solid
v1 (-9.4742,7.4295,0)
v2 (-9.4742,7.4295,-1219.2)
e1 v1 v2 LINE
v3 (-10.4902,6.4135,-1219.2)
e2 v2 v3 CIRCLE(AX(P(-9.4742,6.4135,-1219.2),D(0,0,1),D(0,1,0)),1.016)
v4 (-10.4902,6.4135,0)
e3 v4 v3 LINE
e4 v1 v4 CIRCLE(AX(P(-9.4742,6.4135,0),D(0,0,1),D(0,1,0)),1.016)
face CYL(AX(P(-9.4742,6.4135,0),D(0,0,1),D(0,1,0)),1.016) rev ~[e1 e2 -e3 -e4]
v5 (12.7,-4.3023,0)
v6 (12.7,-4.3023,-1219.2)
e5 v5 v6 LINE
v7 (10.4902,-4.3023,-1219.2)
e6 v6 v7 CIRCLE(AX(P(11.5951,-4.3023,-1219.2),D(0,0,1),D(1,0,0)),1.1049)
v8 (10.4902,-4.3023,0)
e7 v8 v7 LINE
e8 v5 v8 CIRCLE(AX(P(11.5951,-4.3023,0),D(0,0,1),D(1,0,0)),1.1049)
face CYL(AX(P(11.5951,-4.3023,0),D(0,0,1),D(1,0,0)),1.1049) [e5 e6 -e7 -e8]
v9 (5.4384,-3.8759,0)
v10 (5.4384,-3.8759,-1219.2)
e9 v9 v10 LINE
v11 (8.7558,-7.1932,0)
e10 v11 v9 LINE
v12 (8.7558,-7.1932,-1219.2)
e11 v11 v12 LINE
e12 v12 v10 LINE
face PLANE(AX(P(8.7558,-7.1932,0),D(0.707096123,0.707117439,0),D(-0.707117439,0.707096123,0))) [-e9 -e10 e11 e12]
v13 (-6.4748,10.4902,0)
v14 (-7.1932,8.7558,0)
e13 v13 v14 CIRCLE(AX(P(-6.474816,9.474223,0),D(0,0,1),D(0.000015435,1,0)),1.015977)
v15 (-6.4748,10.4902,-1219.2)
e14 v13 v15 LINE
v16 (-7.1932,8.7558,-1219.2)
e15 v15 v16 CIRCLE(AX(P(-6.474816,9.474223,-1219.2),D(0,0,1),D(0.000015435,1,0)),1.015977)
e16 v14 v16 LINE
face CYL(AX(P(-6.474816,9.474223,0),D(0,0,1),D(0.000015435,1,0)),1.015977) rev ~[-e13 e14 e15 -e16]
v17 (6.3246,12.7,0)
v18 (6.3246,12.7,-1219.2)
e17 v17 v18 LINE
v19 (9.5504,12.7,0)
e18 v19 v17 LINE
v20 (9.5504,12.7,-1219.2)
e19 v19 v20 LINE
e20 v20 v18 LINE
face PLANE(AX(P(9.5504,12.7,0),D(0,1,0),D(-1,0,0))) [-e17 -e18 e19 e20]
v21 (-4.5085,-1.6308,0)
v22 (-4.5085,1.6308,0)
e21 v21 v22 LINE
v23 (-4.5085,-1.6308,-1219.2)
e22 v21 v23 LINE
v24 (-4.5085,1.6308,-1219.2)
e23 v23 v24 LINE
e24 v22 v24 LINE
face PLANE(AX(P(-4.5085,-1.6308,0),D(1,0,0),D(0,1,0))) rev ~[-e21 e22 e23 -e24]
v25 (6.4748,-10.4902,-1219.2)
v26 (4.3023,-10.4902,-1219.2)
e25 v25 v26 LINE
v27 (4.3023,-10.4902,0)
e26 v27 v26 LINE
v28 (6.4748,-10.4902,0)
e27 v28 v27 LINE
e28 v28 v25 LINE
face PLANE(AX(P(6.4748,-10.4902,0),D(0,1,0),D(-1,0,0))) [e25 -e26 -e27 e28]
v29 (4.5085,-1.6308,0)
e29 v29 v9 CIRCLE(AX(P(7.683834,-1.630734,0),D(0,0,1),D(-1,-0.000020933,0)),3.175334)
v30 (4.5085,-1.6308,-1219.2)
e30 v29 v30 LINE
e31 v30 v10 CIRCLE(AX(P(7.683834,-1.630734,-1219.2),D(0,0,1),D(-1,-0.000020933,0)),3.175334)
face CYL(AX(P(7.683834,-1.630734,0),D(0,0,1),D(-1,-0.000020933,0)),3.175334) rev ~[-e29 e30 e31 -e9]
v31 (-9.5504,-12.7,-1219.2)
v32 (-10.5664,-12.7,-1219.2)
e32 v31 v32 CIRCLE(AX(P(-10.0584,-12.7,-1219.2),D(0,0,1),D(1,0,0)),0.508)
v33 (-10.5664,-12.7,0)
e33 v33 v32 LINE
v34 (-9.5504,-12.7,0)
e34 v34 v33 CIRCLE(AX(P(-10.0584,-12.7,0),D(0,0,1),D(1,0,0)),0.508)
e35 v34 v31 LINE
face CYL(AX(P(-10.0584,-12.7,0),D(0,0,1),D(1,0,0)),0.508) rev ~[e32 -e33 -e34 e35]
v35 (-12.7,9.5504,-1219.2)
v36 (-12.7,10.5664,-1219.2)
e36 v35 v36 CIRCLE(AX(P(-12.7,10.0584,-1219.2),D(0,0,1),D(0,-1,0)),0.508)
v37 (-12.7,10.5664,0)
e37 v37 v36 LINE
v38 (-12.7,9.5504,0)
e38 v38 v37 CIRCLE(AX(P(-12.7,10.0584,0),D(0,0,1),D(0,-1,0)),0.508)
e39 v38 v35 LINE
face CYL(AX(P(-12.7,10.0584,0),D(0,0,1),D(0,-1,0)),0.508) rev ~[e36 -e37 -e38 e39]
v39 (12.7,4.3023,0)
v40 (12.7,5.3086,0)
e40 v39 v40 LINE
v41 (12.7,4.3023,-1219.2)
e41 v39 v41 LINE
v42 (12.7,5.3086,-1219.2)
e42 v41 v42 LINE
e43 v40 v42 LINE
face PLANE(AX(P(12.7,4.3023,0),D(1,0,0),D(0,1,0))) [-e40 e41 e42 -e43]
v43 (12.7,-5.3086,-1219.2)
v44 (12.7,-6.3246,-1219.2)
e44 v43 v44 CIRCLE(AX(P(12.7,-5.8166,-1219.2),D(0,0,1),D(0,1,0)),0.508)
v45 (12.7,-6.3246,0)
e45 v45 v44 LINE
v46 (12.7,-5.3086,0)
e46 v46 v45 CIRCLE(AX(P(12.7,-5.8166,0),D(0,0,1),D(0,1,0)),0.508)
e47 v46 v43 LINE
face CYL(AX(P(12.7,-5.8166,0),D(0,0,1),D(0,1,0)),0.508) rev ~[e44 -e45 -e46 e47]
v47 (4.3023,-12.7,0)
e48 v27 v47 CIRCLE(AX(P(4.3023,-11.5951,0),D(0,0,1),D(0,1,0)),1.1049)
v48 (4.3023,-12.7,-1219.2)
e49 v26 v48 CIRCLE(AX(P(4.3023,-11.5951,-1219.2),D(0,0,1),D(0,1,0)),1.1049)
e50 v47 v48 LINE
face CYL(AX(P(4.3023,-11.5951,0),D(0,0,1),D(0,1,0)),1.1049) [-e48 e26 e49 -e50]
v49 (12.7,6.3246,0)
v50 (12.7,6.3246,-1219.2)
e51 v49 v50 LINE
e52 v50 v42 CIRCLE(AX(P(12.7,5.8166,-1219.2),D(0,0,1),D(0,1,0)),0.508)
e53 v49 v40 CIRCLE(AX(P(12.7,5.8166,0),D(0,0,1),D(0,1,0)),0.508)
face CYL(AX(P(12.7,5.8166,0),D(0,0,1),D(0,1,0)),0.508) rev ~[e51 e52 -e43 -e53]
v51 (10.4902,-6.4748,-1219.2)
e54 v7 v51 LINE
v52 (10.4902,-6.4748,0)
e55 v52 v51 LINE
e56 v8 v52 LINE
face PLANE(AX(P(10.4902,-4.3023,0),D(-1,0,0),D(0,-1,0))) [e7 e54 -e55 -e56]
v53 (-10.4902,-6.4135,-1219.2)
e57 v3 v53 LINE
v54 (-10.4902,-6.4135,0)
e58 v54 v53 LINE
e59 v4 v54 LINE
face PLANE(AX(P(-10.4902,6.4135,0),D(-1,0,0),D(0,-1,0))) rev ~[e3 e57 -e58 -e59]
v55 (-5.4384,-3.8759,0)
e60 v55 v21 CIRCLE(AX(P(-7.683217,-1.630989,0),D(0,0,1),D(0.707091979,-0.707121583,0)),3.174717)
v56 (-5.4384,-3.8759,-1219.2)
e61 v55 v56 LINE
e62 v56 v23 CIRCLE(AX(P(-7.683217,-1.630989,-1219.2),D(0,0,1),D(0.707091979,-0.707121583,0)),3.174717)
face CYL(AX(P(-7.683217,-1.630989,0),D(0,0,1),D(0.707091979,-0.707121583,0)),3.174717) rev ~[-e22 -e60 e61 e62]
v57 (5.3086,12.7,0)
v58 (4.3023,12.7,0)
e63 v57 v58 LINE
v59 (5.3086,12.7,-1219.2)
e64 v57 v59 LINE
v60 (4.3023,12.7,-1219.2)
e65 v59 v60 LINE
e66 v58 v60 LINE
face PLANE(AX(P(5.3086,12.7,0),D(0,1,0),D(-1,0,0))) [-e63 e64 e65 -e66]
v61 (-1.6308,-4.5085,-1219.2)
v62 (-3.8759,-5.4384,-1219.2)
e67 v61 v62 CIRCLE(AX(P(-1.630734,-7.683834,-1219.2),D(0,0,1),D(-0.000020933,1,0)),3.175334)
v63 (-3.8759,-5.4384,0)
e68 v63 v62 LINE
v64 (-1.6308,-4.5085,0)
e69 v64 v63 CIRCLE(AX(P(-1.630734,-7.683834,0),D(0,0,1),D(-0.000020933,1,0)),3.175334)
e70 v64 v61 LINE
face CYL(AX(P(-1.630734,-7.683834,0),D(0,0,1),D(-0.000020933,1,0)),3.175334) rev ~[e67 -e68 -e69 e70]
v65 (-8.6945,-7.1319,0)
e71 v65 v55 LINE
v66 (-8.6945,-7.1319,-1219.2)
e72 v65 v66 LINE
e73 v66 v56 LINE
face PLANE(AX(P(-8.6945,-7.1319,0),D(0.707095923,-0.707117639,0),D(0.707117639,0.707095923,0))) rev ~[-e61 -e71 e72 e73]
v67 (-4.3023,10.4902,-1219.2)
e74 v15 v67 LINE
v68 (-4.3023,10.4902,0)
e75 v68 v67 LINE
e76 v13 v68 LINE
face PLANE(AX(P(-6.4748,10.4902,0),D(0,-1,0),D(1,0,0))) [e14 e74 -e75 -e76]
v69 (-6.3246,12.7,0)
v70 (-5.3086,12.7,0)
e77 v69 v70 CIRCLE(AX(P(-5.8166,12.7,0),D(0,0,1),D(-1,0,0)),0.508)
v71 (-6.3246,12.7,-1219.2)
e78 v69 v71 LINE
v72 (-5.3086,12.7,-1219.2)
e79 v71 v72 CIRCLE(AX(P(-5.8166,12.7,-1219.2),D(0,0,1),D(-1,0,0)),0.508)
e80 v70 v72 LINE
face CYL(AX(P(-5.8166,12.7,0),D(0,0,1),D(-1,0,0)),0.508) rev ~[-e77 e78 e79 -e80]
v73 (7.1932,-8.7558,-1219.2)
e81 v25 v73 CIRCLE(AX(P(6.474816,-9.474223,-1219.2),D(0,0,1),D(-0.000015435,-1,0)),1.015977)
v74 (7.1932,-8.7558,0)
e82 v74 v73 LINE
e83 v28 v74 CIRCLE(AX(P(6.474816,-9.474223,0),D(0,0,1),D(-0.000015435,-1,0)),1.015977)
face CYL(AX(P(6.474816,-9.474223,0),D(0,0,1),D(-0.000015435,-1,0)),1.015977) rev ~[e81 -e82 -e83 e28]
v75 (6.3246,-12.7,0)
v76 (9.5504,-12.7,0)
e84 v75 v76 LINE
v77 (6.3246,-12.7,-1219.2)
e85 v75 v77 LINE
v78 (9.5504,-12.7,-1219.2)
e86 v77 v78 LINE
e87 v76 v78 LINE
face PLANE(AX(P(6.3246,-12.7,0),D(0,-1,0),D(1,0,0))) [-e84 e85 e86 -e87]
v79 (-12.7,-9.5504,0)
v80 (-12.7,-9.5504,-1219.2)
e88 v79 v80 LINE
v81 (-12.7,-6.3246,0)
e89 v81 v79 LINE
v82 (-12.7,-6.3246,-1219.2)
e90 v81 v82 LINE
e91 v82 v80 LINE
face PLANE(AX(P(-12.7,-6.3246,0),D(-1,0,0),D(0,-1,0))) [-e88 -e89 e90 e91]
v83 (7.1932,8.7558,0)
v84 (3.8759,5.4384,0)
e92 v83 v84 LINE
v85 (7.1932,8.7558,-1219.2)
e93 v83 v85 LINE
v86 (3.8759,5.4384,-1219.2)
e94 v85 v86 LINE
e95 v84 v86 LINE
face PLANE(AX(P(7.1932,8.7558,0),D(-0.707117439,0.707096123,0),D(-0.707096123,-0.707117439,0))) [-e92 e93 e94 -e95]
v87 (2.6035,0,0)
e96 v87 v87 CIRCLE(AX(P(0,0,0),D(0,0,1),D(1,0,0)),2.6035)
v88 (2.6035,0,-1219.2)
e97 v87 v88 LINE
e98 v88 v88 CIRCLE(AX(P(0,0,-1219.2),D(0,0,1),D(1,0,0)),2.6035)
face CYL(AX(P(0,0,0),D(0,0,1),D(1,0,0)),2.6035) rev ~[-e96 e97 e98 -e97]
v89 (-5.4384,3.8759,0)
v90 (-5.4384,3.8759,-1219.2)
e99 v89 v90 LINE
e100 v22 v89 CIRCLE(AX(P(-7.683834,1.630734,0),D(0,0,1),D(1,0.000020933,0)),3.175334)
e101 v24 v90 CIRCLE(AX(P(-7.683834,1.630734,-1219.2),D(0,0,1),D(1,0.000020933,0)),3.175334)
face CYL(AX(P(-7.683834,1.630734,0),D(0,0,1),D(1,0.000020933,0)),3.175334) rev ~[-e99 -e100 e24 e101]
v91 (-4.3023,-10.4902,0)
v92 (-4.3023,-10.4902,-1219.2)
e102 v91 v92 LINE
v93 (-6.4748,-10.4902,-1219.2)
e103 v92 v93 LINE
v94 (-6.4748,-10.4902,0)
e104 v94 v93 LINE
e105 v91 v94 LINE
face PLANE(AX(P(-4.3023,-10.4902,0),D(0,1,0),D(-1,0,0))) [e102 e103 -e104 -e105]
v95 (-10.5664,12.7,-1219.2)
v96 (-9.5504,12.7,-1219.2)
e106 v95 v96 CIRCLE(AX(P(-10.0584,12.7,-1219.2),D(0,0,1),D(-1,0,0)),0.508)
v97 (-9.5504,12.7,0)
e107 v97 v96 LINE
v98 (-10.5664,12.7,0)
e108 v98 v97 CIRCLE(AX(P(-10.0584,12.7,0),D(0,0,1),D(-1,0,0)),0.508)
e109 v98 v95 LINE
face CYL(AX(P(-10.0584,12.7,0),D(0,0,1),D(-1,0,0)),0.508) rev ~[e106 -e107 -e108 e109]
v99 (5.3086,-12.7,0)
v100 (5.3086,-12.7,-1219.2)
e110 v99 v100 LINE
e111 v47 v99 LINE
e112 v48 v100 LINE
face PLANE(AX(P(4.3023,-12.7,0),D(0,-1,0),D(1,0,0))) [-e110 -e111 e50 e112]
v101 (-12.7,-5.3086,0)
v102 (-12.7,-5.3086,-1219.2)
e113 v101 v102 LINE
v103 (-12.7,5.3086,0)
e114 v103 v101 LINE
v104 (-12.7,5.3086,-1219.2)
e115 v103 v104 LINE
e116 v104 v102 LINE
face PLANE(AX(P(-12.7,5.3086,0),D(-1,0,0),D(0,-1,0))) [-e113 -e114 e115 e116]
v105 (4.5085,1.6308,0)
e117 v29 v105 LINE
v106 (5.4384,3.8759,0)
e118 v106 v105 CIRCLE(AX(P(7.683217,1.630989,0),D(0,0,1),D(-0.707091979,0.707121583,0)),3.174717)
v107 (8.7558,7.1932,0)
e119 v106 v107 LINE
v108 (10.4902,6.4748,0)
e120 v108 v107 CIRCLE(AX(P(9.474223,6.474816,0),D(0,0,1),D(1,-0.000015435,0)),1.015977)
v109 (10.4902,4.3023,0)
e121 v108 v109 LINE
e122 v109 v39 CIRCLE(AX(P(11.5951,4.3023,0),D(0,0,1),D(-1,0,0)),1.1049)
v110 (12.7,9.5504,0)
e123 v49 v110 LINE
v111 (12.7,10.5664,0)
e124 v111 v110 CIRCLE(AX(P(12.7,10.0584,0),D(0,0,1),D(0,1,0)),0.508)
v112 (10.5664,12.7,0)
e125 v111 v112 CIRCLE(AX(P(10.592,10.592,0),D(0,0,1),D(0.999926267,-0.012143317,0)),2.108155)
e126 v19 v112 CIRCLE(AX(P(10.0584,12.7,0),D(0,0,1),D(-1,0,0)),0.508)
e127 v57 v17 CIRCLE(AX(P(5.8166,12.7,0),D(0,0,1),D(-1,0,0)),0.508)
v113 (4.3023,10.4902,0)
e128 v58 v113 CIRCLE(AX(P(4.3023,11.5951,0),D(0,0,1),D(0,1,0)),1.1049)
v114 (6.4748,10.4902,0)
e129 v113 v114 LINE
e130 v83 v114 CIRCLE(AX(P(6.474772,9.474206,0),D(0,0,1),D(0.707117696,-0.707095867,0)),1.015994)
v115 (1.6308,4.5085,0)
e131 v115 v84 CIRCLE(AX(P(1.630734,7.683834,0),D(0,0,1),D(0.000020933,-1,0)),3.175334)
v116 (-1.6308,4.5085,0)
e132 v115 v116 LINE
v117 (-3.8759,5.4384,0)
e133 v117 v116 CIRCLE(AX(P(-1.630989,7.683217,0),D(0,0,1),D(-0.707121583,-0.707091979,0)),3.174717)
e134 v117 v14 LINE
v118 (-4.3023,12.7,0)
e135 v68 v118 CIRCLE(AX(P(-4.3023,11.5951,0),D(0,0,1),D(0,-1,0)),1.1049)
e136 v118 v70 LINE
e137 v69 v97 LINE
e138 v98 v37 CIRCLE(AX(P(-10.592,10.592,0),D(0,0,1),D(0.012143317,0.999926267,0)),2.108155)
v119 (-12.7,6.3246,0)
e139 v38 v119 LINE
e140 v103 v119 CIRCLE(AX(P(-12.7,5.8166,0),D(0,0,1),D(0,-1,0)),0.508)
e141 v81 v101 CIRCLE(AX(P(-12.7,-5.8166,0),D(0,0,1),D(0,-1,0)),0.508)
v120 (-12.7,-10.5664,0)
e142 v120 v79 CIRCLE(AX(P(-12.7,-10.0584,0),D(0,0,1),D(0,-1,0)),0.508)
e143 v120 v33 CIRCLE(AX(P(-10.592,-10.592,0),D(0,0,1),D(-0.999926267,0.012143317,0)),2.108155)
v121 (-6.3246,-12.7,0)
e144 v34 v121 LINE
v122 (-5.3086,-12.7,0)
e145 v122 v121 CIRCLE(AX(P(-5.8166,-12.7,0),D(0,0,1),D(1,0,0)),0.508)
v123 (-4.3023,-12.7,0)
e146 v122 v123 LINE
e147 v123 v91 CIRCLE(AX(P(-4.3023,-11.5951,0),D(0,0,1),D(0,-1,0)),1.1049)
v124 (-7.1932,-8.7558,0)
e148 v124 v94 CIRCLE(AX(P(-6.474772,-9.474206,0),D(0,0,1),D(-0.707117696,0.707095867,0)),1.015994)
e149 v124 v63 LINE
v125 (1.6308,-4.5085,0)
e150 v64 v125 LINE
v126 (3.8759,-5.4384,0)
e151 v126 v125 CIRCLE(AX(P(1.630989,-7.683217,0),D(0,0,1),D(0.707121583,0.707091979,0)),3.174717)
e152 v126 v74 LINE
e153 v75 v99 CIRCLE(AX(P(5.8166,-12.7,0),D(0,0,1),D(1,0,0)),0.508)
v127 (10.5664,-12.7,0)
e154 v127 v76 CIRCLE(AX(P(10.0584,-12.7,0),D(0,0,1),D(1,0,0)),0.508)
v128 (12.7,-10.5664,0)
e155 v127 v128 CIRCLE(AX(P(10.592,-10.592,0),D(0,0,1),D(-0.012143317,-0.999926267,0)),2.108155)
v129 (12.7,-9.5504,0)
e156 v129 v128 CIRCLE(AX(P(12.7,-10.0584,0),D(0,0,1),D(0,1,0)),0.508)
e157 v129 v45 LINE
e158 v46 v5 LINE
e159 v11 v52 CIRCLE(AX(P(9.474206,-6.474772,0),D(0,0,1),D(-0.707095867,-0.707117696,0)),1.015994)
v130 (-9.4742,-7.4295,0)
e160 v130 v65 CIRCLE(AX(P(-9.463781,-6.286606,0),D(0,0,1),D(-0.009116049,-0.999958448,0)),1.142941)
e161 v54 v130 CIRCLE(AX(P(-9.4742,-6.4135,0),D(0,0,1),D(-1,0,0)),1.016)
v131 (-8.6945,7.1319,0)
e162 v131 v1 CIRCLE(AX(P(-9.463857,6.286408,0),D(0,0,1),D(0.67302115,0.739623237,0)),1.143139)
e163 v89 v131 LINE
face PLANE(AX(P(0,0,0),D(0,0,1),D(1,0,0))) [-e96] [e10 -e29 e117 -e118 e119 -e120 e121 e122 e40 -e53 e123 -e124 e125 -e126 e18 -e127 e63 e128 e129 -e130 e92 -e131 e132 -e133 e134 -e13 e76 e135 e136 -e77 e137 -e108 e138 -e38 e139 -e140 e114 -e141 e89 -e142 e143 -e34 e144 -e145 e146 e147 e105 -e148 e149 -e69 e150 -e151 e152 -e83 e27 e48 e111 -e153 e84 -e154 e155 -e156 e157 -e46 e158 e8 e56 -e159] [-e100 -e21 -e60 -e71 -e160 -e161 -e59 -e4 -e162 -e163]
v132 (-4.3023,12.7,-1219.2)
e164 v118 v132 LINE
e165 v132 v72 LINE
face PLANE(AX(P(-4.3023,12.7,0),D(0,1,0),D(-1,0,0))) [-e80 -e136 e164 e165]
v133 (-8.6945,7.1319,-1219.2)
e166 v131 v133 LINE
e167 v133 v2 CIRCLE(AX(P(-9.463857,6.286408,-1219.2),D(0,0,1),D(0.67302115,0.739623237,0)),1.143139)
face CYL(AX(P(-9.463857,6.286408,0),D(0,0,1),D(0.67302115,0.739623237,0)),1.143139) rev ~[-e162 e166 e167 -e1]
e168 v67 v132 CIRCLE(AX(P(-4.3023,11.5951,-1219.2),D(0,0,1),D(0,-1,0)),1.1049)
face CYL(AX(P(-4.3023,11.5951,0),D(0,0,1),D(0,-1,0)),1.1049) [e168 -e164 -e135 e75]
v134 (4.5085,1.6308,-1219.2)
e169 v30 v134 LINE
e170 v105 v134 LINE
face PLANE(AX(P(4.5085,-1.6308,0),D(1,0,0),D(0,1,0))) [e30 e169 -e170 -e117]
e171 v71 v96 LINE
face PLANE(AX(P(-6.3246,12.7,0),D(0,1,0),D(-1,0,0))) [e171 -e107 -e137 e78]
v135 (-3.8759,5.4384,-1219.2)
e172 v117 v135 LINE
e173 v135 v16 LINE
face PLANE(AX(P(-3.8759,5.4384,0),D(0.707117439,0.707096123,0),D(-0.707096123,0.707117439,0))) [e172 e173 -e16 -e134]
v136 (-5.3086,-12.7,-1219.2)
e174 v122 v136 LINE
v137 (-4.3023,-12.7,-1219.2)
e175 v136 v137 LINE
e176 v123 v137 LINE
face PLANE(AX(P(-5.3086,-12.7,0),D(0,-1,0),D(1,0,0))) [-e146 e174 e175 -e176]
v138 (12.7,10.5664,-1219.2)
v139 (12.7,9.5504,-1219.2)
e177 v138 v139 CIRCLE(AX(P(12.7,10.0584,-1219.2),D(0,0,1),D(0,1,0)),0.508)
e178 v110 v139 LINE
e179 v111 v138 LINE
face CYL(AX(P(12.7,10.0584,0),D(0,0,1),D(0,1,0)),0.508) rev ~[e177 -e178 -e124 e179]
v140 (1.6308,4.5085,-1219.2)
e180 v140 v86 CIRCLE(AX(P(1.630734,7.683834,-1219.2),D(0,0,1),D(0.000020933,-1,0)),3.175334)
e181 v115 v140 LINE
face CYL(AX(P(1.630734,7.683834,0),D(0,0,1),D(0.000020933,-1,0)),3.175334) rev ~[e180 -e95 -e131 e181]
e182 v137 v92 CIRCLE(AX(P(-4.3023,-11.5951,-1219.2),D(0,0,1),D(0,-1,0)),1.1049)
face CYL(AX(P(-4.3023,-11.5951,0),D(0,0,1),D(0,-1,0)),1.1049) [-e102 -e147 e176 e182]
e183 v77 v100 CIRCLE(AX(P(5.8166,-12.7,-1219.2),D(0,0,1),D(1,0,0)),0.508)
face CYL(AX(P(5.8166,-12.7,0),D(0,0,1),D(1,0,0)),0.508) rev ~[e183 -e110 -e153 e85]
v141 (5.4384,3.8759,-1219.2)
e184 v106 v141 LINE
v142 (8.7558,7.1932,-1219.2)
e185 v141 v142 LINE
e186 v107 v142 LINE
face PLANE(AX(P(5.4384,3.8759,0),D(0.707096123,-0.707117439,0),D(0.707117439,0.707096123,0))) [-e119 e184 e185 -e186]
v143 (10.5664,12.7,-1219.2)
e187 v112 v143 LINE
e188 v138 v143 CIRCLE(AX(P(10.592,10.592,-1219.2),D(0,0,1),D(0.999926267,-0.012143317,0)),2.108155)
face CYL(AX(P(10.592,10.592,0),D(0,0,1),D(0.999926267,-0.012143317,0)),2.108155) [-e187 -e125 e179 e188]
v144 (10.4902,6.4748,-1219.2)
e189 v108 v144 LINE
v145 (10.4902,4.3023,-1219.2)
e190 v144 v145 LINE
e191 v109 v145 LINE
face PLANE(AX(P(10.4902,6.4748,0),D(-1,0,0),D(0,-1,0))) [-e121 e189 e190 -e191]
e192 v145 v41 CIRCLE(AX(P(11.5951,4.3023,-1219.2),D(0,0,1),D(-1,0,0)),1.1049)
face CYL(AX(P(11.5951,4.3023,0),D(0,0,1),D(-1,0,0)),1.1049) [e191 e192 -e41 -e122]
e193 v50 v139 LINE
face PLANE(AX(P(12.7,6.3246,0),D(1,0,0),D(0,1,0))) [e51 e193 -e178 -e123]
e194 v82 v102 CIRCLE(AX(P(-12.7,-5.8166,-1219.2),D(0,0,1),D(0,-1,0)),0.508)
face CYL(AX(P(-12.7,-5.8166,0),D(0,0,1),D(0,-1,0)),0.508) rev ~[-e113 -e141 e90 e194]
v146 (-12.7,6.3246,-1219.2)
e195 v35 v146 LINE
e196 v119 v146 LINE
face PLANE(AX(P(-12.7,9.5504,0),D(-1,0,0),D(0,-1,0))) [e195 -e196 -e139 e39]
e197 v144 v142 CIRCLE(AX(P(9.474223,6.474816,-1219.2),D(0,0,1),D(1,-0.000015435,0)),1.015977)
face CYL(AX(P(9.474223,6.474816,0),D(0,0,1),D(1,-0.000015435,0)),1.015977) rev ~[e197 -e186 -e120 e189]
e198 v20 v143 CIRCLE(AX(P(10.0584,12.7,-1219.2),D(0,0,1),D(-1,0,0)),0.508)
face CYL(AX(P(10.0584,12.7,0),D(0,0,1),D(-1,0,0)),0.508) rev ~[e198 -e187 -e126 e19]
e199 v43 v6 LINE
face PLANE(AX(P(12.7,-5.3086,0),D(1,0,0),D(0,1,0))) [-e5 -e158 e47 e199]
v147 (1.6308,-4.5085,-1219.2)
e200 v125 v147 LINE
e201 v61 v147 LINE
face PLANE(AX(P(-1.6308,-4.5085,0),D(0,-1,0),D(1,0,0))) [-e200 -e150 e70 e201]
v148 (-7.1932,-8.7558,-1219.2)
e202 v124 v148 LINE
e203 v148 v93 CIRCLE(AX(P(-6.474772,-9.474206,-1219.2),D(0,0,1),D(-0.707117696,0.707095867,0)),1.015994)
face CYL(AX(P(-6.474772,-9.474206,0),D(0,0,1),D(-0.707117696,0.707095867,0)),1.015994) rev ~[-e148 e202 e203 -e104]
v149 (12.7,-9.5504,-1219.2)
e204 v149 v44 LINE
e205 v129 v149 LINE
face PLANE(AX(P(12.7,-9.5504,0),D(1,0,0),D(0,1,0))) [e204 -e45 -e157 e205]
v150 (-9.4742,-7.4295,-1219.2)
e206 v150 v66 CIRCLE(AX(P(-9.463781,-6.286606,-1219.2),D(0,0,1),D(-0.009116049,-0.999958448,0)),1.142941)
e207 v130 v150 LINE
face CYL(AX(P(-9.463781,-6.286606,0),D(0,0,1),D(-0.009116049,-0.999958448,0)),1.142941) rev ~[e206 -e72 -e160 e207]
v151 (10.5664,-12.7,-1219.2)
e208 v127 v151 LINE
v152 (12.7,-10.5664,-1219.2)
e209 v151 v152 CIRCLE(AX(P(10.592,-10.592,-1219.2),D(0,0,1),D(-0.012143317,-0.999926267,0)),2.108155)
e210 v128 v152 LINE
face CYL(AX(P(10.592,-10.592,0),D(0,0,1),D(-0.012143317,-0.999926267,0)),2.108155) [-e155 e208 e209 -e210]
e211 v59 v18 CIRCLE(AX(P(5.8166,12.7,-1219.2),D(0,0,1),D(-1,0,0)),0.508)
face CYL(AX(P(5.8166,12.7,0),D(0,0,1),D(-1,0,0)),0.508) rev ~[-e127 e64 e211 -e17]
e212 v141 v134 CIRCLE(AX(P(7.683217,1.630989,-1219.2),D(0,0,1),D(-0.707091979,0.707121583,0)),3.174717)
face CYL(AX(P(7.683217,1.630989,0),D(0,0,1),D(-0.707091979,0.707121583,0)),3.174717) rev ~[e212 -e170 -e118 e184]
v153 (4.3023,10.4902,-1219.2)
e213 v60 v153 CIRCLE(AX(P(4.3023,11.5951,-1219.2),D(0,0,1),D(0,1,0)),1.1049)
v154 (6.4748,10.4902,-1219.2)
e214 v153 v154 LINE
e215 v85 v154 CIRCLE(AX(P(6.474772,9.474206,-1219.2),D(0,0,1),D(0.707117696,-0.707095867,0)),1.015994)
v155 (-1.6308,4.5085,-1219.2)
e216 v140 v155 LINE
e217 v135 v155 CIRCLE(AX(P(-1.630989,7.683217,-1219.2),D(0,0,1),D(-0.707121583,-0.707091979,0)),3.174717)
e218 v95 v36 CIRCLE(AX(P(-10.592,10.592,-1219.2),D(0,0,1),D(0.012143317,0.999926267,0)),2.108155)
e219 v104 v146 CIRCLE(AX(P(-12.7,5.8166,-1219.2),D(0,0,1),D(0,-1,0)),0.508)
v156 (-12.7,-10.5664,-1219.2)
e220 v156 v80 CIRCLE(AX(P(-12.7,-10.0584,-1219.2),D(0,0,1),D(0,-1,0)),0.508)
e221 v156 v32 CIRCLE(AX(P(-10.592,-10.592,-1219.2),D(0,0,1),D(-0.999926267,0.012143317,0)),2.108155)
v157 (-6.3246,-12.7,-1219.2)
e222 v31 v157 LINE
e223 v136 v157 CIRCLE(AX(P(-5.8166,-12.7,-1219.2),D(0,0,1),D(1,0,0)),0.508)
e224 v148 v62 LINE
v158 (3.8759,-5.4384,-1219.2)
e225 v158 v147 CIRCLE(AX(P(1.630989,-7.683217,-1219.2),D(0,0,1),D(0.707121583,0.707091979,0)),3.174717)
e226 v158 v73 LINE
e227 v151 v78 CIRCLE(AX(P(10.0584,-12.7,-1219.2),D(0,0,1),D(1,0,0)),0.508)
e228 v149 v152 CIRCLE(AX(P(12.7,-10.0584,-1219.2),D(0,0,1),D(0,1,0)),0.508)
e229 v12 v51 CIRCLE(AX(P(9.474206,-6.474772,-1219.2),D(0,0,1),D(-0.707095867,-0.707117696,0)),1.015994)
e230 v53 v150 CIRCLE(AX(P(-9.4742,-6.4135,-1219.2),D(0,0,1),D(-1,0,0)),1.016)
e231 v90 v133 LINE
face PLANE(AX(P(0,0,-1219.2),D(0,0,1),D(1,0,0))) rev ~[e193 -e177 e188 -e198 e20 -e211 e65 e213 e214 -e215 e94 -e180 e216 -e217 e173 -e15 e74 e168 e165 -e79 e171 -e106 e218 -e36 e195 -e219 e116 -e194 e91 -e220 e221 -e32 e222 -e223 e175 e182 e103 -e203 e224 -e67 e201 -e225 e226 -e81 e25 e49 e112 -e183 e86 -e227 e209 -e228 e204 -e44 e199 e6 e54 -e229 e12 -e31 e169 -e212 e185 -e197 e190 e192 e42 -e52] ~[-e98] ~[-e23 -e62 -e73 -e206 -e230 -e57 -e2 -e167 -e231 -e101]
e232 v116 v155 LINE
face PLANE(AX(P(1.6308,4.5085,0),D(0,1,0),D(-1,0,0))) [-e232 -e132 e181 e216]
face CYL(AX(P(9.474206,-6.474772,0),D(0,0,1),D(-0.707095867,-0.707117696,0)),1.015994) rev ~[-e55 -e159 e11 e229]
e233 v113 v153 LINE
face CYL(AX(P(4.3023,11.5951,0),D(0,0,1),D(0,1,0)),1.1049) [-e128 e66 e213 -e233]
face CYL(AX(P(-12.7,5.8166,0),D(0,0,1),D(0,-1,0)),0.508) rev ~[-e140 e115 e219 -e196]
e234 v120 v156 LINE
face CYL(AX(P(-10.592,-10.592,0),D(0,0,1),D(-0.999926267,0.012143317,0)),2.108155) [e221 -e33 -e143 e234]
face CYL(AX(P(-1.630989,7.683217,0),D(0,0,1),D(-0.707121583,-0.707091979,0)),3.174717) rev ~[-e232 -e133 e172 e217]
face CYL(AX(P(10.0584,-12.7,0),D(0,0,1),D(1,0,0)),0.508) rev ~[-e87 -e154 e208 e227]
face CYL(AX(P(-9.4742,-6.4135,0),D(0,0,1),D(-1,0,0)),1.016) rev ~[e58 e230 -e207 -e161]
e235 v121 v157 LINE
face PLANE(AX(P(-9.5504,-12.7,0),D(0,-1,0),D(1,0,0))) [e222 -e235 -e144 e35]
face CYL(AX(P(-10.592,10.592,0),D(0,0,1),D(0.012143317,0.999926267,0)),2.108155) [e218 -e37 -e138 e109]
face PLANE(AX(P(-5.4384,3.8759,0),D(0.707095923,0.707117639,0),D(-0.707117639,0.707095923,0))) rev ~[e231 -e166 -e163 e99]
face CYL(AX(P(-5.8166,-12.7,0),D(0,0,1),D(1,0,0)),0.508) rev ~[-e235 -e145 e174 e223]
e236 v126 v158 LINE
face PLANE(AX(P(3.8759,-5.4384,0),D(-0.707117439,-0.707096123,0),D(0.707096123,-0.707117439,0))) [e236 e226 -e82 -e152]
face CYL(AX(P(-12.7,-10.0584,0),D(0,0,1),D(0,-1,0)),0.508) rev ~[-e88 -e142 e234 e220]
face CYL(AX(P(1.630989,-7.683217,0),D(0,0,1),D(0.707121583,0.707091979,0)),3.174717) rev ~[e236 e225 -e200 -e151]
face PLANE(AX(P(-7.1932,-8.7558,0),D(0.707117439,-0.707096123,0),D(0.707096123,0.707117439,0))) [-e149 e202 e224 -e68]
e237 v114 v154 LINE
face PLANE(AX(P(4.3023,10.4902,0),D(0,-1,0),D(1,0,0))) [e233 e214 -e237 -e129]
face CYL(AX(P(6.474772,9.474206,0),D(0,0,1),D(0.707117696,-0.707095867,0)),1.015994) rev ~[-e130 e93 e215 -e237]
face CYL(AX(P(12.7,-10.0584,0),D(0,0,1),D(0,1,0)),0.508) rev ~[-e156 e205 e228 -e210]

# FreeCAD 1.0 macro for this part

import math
import FreeCAD as App
import Part
import Sketcher

V = App.Vector
Q = App.Units.Quantity

doc = App.newDocument("Part")
body = doc.addObject("PartDesign::Body", "Body")

sketch1 = body.newObject("Sketcher::SketchObject", "Sketch")
sketch1.AttachmentSupport = (doc.getObject("XY_Plane"), [""])
sketch1.MapMode = "FlatFace"
sketch1.addGeometry(Part.ArcOfCircle(Part.Circle(V(-12.7, -10.1, 0), V(0, 0, 1), 0.5), math.radians(-90), math.radians(90)), False)
sketch1.addGeometry(Part.ArcOfCircle(Part.Circle(V(-10.6, -10.6, 0), V(0, 0, 1), 2.1), math.radians(179), math.radians(271)), False)
sketch1.addGeometry(Part.ArcOfCircle(Part.Circle(V(-10.1, -12.7, 0), V(0, 0, 1), 0.5), math.radians(0), math.radians(180)), False)
sketch1.addGeometry(Part.LineSegment(V(-9.6, -12.7, 0), V(-6.3, -12.7, 0)), False)
sketch1.addGeometry(Part.ArcOfCircle(Part.Circle(V(-5.8, -12.7, 0), V(0, 0, 1), 0.5), math.radians(0), math.radians(180)), False)
sketch1.addGeometry(Part.LineSegment(V(-5.3, -12.7, 0), V(-4.3, -12.7, 0)), False)
sketch1.addGeometry(Part.ArcOfCircle(Part.Circle(V(-4.3, -11.6, 0), V(0, 0, 1), 1.1), math.radians(-90), math.radians(90)), False)
sketch1.addGeometry(Part.LineSegment(V(-4.3, -10.5, 0), V(-6.5, -10.5, 0)), False)
sketch1.addGeometry(Part.ArcOfCircle(Part.Circle(V(-6.5, -9.5, 0), V(0, 0, 1), 1), math.radians(135), math.radians(270)), False)
sketch1.addGeometry(Part.LineSegment(V(-7.2, -8.8, 0), V(-3.9, -5.4, 0)), False)
sketch1.addGeometry(Part.ArcOfCircle(Part.Circle(V(-1.6, -7.7, 0), V(0, 0, 1), 3.2), math.radians(90), math.radians(135)), False)
sketch1.addGeometry(Part.LineSegment(V(-1.6, -4.5, 0), V(1.6, -4.5, 0)), False)
sketch1.addGeometry(Part.ArcOfCircle(Part.Circle(V(1.6, -7.7, 0), V(0, 0, 1), 3.2), math.radians(45), math.radians(90)), False)
sketch1.addGeometry(Part.LineSegment(V(3.9, -5.4, 0), V(7.2, -8.8, 0)), False)
sketch1.addGeometry(Part.ArcOfCircle(Part.Circle(V(6.5, -9.5, 0), V(0, 0, 1), 1), math.radians(-90), math.radians(45)), False)
sketch1.addGeometry(Part.LineSegment(V(6.5, -10.5, 0), V(4.3, -10.5, 0)), False)
sketch1.addGeometry(Part.ArcOfCircle(Part.Circle(V(4.3, -11.6, 0), V(0, 0, 1), 1.1), math.radians(90), math.radians(270)), False)
sketch1.addGeometry(Part.LineSegment(V(4.3, -12.7, 0), V(5.3, -12.7, 0)), False)
sketch1.addGeometry(Part.ArcOfCircle(Part.Circle(V(5.8, -12.7, 0), V(0, 0, 1), 0.5), math.radians(0), math.radians(180)), False)
sketch1.addGeometry(Part.LineSegment(V(6.3, -12.7, 0), V(9.6, -12.7, 0)), False)
sketch1.addGeometry(Part.ArcOfCircle(Part.Circle(V(10.1, -12.7, 0), V(0, 0, 1), 0.5), math.radians(0), math.radians(180)), False)
sketch1.addGeometry(Part.ArcOfCircle(Part.Circle(V(10.6, -10.6, 0), V(0, 0, 1), 2.1), math.radians(-91), math.radians(1)), False)
sketch1.addGeometry(Part.ArcOfCircle(Part.Circle(V(12.7, -10.1, 0), V(0, 0, 1), 0.5), math.radians(90), math.radians(270)), False)
sketch1.addGeometry(Part.LineSegment(V(12.7, -9.6, 0), V(12.7, -6.3, 0)), False)
sketch1.addGeometry(Part.ArcOfCircle(Part.Circle(V(12.7, -5.8, 0), V(0, 0, 1), 0.5), math.radians(90), math.radians(270)), False)
sketch1.addGeometry(Part.LineSegment(V(12.7, -5.3, 0), V(12.7, -4.3, 0)), False)
sketch1.addGeometry(Part.ArcOfCircle(Part.Circle(V(11.6, -4.3, 0), V(0, 0, 1), 1.1), math.radians(0), math.radians(180)), False)
sketch1.addGeometry(Part.LineSegment(V(10.5, -4.3, 0), V(10.5, -6.5, 0)), False)
sketch1.addGeometry(Part.ArcOfCircle(Part.Circle(V(9.5, -6.5, 0), V(0, 0, 1), 1), math.radians(-135), math.radians(0)), False)
sketch1.addGeometry(Part.LineSegment(V(8.8, -7.2, 0), V(5.4, -3.9, 0)), False)
sketch1.addGeometry(Part.ArcOfCircle(Part.Circle(V(7.7, -1.6, 0), V(0, 0, 1), 3.2), math.radians(180), math.radians(225)), False)
sketch1.addGeometry(Part.LineSegment(V(4.5, -1.6, 0), V(4.5, 1.6, 0)), False)
sketch1.addGeometry(Part.ArcOfCircle(Part.Circle(V(7.7, 1.6, 0), V(0, 0, 1), 3.2), math.radians(135), math.radians(180)), False)
sketch1.addGeometry(Part.LineSegment(V(5.4, 3.9, 0), V(8.8, 7.2, 0)), False)
sketch1.addGeometry(Part.ArcOfCircle(Part.Circle(V(9.5, 6.5, 0), V(0, 0, 1), 1), math.radians(0), math.radians(135)), False)
sketch1.addGeometry(Part.LineSegment(V(10.5, 6.5, 0), V(10.5, 4.3, 0)), False)
sketch1.addGeometry(Part.ArcOfCircle(Part.Circle(V(11.6, 4.3, 0), V(0, 0, 1), 1.1), math.radians(180), math.radians(360)), False)
sketch1.addGeometry(Part.LineSegment(V(12.7, 4.3, 0), V(12.7, 5.3, 0)), False)
sketch1.addGeometry(Part.ArcOfCircle(Part.Circle(V(12.7, 5.8, 0), V(0, 0, 1), 0.5), math.radians(90), math.radians(270)), False)
sketch1.addGeometry(Part.LineSegment(V(12.7, 6.3, 0), V(12.7, 9.6, 0)), False)
sketch1.addGeometry(Part.ArcOfCircle(Part.Circle(V(12.7, 10.1, 0), V(0, 0, 1), 0.5), math.radians(90), math.radians(270)), False)
sketch1.addGeometry(Part.ArcOfCircle(Part.Circle(V(10.6, 10.6, 0), V(0, 0, 1), 2.1), math.radians(-1), math.radians(91)), False)
sketch1.addGeometry(Part.ArcOfCircle(Part.Circle(V(10.1, 12.7, 0), V(0, 0, 1), 0.5), math.radians(180), math.radians(360)), False)
sketch1.addGeometry(Part.LineSegment(V(9.6, 12.7, 0), V(6.3, 12.7, 0)), False)
sketch1.addGeometry(Part.ArcOfCircle(Part.Circle(V(5.8, 12.7, 0), V(0, 0, 1), 0.5), math.radians(180), math.radians(360)), False)
sketch1.addGeometry(Part.LineSegment(V(5.3, 12.7, 0), V(4.3, 12.7, 0)), False)
sketch1.addGeometry(Part.ArcOfCircle(Part.Circle(V(4.3, 11.6, 0), V(0, 0, 1), 1.1), math.radians(90), math.radians(270)), False)
sketch1.addGeometry(Part.LineSegment(V(4.3, 10.5, 0), V(6.5, 10.5, 0)), False)
sketch1.addGeometry(Part.ArcOfCircle(Part.Circle(V(6.5, 9.5, 0), V(0, 0, 1), 1), math.radians(-45), math.radians(90)), False)
sketch1.addGeometry(Part.LineSegment(V(7.2, 8.8, 0), V(3.9, 5.4, 0)), False)
sketch1.addGeometry(Part.ArcOfCircle(Part.Circle(V(1.6, 7.7, 0), V(0, 0, 1), 3.2), math.radians(-90), math.radians(-45)), False)
sketch1.addGeometry(Part.LineSegment(V(1.6, 4.5, 0), V(-1.6, 4.5, 0)), False)
sketch1.addGeometry(Part.ArcOfCircle(Part.Circle(V(-1.6, 7.7, 0), V(0, 0, 1), 3.2), math.radians(-135), math.radians(-90)), False)
sketch1.addGeometry(Part.LineSegment(V(-3.9, 5.4, 0), V(-7.2, 8.8, 0)), False)
sketch1.addGeometry(Part.ArcOfCircle(Part.Circle(V(-6.5, 9.5, 0), V(0, 0, 1), 1), math.radians(90), math.radians(225)), False)
sketch1.addGeometry(Part.LineSegment(V(-6.5, 10.5, 0), V(-4.3, 10.5, 0)), False)
sketch1.addGeometry(Part.ArcOfCircle(Part.Circle(V(-4.3, 11.6, 0), V(0, 0, 1), 1.1), math.radians(-90), math.radians(90)), False)
sketch1.addGeometry(Part.LineSegment(V(-4.3, 12.7, 0), V(-5.3, 12.7, 0)), False)
sketch1.addGeometry(Part.ArcOfCircle(Part.Circle(V(-5.8, 12.7, 0), V(0, 0, 1), 0.5), math.radians(180), math.radians(360)), False)
sketch1.addGeometry(Part.LineSegment(V(-6.3, 12.7, 0), V(-9.6, 12.7, 0)), False)
sketch1.addGeometry(Part.ArcOfCircle(Part.Circle(V(-10.1, 12.7, 0), V(0, 0, 1), 0.5), math.radians(180), math.radians(360)), False)
sketch1.addGeometry(Part.ArcOfCircle(Part.Circle(V(-10.6, 10.6, 0), V(0, 0, 1), 2.1), math.radians(89), math.radians(181)), False)
sketch1.addGeometry(Part.ArcOfCircle(Part.Circle(V(-12.7, 10.1, 0), V(0, 0, 1), 0.5), math.radians(-90), math.radians(90)), False)
sketch1.addGeometry(Part.LineSegment(V(-12.7, 9.6, 0), V(-12.7, 6.3, 0)), False)
sketch1.addGeometry(Part.ArcOfCircle(Part.Circle(V(-12.7, 5.8, 0), V(0, 0, 1), 0.5), math.radians(-90), math.radians(90)), False)
sketch1.addGeometry(Part.LineSegment(V(-12.7, 5.3, 0), V(-12.7, -5.3, 0)), False)
sketch1.addGeometry(Part.ArcOfCircle(Part.Circle(V(-12.7, -5.8, 0), V(0, 0, 1), 0.5), math.radians(-90), math.radians(90)), False)
sketch1.addGeometry(Part.LineSegment(V(-12.7, -6.3, 0), V(-12.7, -9.6, 0)), False)
sketch1.addGeometry(Part.ArcOfCircle(Part.Circle(V(-9.5, -6.4, 0), V(0, 0, 1), 1), math.radians(180), math.radians(270)), False)
sketch1.addGeometry(Part.LineSegment(V(-10.5, -6.4, 0), V(-10.5, 6.4, 0)), False)
sketch1.addGeometry(Part.ArcOfCircle(Part.Circle(V(-9.5, 6.4, 0), V(0, 0, 1), 1), math.radians(90), math.radians(180)), False)
sketch1.addGeometry(Part.ArcOfCircle(Part.Circle(V(-9.5, 6.3, 0), V(0, 0, 1), 1.1), math.radians(48), math.radians(91)), False)
sketch1.addGeometry(Part.LineSegment(V(-8.7, 7.1, 0), V(-5.4, 3.9, 0)), False)
sketch1.addGeometry(Part.ArcOfCircle(Part.Circle(V(-7.7, 1.6, 0), V(0, 0, 1), 3.2), math.radians(0), math.radians(45)), False)
sketch1.addGeometry(Part.LineSegment(V(-4.5, 1.6, 0), V(-4.5, -1.6, 0)), False)
sketch1.addGeometry(Part.ArcOfCircle(Part.Circle(V(-7.7, -1.6, 0), V(0, 0, 1), 3.2), math.radians(-45), math.radians(0)), False)
sketch1.addGeometry(Part.LineSegment(V(-5.4, -3.9, 0), V(-8.7, -7.1, 0)), False)
sketch1.addGeometry(Part.ArcOfCircle(Part.Circle(V(-9.5, -6.3, 0), V(0, 0, 1), 1.1), math.radians(-91), math.radians(-48)), False)
sketch1.addGeometry(Part.Circle(V(0, 0, 0), V(0, 0, 1), 2.6), False)
sketch1.addConstraint(Sketcher.Constraint("Coincident", 0, 1, 1, 1))
sketch1.addConstraint(Sketcher.Constraint("Coincident", 1, 2, 2, 2))
sketch1.addConstraint(Sketcher.Constraint("Coincident", 2, 1, 3, 1))
sketch1.addConstraint(Sketcher.Constraint("Coincident", 3, 2, 4, 2))
sketch1.addConstraint(Sketcher.Constraint("Coincident", 4, 1, 5, 1))
sketch1.addConstraint(Sketcher.Constraint("Tangent", 5, 2, 6, 1))
sketch1.addConstraint(Sketcher.Constraint("Tangent", 6, 2, 7, 1))
sketch1.addConstraint(Sketcher.Constraint("Tangent", 7, 2, 8, 2))
sketch1.addConstraint(Sketcher.Constraint("Tangent", 8, 1, 9, 1))
sketch1.addConstraint(Sketcher.Constraint("Tangent", 9, 2, 10, 2))
sketch1.addConstraint(Sketcher.Constraint("Tangent", 10, 1, 11, 1))
sketch1.addConstraint(Sketcher.Constraint("Tangent", 11, 2, 12, 2))
sketch1.addConstraint(Sketcher.Constraint("Tangent", 12, 1, 13, 1))
sketch1.addConstraint(Sketcher.Constraint("Tangent", 13, 2, 14, 2))
sketch1.addConstraint(Sketcher.Constraint("Tangent", 14, 1, 15, 1))
sketch1.addConstraint(Sketcher.Constraint("Tangent", 15, 2, 16, 1))
sketch1.addConstraint(Sketcher.Constraint("Tangent", 16, 2, 17, 1))
sketch1.addConstraint(Sketcher.Constraint("Coincident", 17, 2, 18, 2))
sketch1.addConstraint(Sketcher.Constraint("Coincident", 18, 1, 19, 1))
sketch1.addConstraint(Sketcher.Constraint("Coincident", 19, 2, 20, 2))
sketch1.addConstraint(Sketcher.Constraint("Coincident", 20, 1, 21, 1))
sketch1.addConstraint(Sketcher.Constraint("Coincident", 21, 2, 22, 2))
sketch1.addConstraint(Sketcher.Constraint("Coincident", 22, 1, 23, 1))
sketch1.addConstraint(Sketcher.Constraint("Coincident", 23, 2, 24, 2))
sketch1.addConstraint(Sketcher.Constraint("Coincident", 24, 1, 25, 1))
sketch1.addConstraint(Sketcher.Constraint("Tangent", 25, 2, 26, 1))
sketch1.addConstraint(Sketcher.Constraint("Tangent", 26, 2, 27, 1))
sketch1.addConstraint(Sketcher.Constraint("Tangent", 27, 2, 28, 2))
sketch1.addConstraint(Sketcher.Constraint("Tangent", 28, 1, 29, 1))
sketch1.addConstraint(Sketcher.Constraint("Tangent", 29, 2, 30, 2))
sketch1.addConstraint(Sketcher.Constraint("Tangent", 30, 1, 31, 1))
sketch1.addConstraint(Sketcher.Constraint("Tangent", 31, 2, 32, 2))
sketch1.addConstraint(Sketcher.Constraint("Tangent", 32, 1, 33, 1))
sketch1.addConstraint(Sketcher.Constraint("Tangent", 33, 2, 34, 2))
sketch1.addConstraint(Sketcher.Constraint("Tangent", 34, 1, 35, 1))
sketch1.addConstraint(Sketcher.Constraint("Tangent", 35, 2, 36, 1))
sketch1.addConstraint(Sketcher.Constraint("Tangent", 36, 2, 37, 1))
sketch1.addConstraint(Sketcher.Constraint("Coincident", 37, 2, 38, 2))
sketch1.addConstraint(Sketcher.Constraint("Coincident", 38, 1, 39, 1))
sketch1.addConstraint(Sketcher.Constraint("Coincident", 39, 2, 40, 2))
sketch1.addConstraint(Sketcher.Constraint("Coincident", 40, 1, 41, 1))
sketch1.addConstraint(Sketcher.Constraint("Coincident", 41, 2, 42, 2))
sketch1.addConstraint(Sketcher.Constraint("Coincident", 42, 1, 43, 1))
sketch1.addConstraint(Sketcher.Constraint("Coincident", 43, 2, 44, 2))
sketch1.addConstraint(Sketcher.Constraint("Coincident", 44, 1, 45, 1))
sketch1.addConstraint(Sketcher.Constraint("Tangent", 45, 2, 46, 1))
sketch1.addConstraint(Sketcher.Constraint("Tangent", 46, 2, 47, 1))
sketch1.addConstraint(Sketcher.Constraint("Tangent", 47, 2, 48, 2))
sketch1.addConstraint(Sketcher.Constraint("Tangent", 48, 1, 49, 1))
sketch1.addConstraint(Sketcher.Constraint("Tangent", 49, 2, 50, 2))
sketch1.addConstraint(Sketcher.Constraint("Tangent", 50, 1, 51, 1))
sketch1.addConstraint(Sketcher.Constraint("Tangent", 51, 2, 52, 2))
sketch1.addConstraint(Sketcher.Constraint("Tangent", 52, 1, 53, 1))
sketch1.addConstraint(Sketcher.Constraint("Tangent", 53, 2, 54, 2))
sketch1.addConstraint(Sketcher.Constraint("Tangent", 54, 1, 55, 1))
sketch1.addConstraint(Sketcher.Constraint("Tangent", 55, 2, 56, 1))
sketch1.addConstraint(Sketcher.Constraint("Tangent", 56, 2, 57, 1))
sketch1.addConstraint(Sketcher.Constraint("Coincident", 57, 2, 58, 2))
sketch1.addConstraint(Sketcher.Constraint("Coincident", 58, 1, 59, 1))
sketch1.addConstraint(Sketcher.Constraint("Coincident", 59, 2, 60, 2))
sketch1.addConstraint(Sketcher.Constraint("Coincident", 60, 1, 61, 1))
sketch1.addConstraint(Sketcher.Constraint("Coincident", 61, 2, 62, 2))
sketch1.addConstraint(Sketcher.Constraint("Coincident", 62, 1, 63, 1))
sketch1.addConstraint(Sketcher.Constraint("Coincident", 63, 2, 64, 2))
sketch1.addConstraint(Sketcher.Constraint("Coincident", 64, 1, 65, 1))
sketch1.addConstraint(Sketcher.Constraint("Coincident", 65, 2, 66, 2))
sketch1.addConstraint(Sketcher.Constraint("Coincident", 66, 1, 67, 1))
sketch1.addConstraint(Sketcher.Constraint("Coincident", 67, 2, 0, 2))
sketch1.addConstraint(Sketcher.Constraint("Tangent", 68, 1, 69, 1))
sketch1.addConstraint(Sketcher.Constraint("Tangent", 69, 2, 70, 2))
sketch1.addConstraint(Sketcher.Constraint("Coincident", 70, 1, 71, 2))
sketch1.addConstraint(Sketcher.Constraint("Coincident", 71, 1, 72, 1))
sketch1.addConstraint(Sketcher.Constraint("Tangent", 72, 2, 73, 2))
sketch1.addConstraint(Sketcher.Constraint("Tangent", 73, 1, 74, 1))
sketch1.addConstraint(Sketcher.Constraint("Tangent", 74, 2, 75, 2))
sketch1.addConstraint(Sketcher.Constraint("Tangent", 75, 1, 76, 1))
sketch1.addConstraint(Sketcher.Constraint("Coincident", 76, 2, 77, 2))
sketch1.addConstraint(Sketcher.Constraint("Coincident", 77, 1, 68, 2))
sketch1.addConstraint(Sketcher.Constraint("Horizontal", 3))
sketch1.addConstraint(Sketcher.Constraint("Horizontal", 5))
sketch1.addConstraint(Sketcher.Constraint("Horizontal", 7))
sketch1.addConstraint(Sketcher.Constraint("Horizontal", 11))
sketch1.addConstraint(Sketcher.Constraint("Horizontal", 15))
sketch1.addConstraint(Sketcher.Constraint("Horizontal", 17))
sketch1.addConstraint(Sketcher.Constraint("Horizontal", 19))
sketch1.addConstraint(Sketcher.Constraint("Vertical", 23))
sketch1.addConstraint(Sketcher.Constraint("Vertical", 25))
sketch1.addConstraint(Sketcher.Constraint("Vertical", 27))
sketch1.addConstraint(Sketcher.Constraint("Vertical", 31))
sketch1.addConstraint(Sketcher.Constraint("Vertical", 35))
sketch1.addConstraint(Sketcher.Constraint("Vertical", 37))
sketch1.addConstraint(Sketcher.Constraint("Vertical", 39))
sketch1.addConstraint(Sketcher.Constraint("Horizontal", 43))
sketch1.addConstraint(Sketcher.Constraint("Horizontal", 45))
sketch1.addConstraint(Sketcher.Constraint("Horizontal", 47))
sketch1.addConstraint(Sketcher.Constraint("Horizontal", 51))
sketch1.addConstraint(Sketcher.Constraint("Horizontal", 55))
sketch1.addConstraint(Sketcher.Constraint("Horizontal", 57))
sketch1.addConstraint(Sketcher.Constraint("Horizontal", 59))
sketch1.addConstraint(Sketcher.Constraint("Vertical", 63))
sketch1.addConstraint(Sketcher.Constraint("Vertical", 65))
sketch1.addConstraint(Sketcher.Constraint("Vertical", 67))
sketch1.addConstraint(Sketcher.Constraint("Vertical", 69))
sketch1.addConstraint(Sketcher.Constraint("Vertical", 74))
sketch1.addConstraint(Sketcher.Constraint("Coincident", 78, 3, -1, 1))
sketch1.addConstraint(Sketcher.Constraint("Equal", 0, 2))
sketch1.addConstraint(Sketcher.Constraint("Equal", 2, 4))
sketch1.addConstraint(Sketcher.Constraint("Equal", 10, 12))
sketch1.addConstraint(Sketcher.Constraint("Equal", 8, 14))
sketch1.addConstraint(Sketcher.Constraint("Equal", 6, 16))
sketch1.addConstraint(Sketcher.Constraint("Equal", 4, 18))
sketch1.addConstraint(Sketcher.Constraint("Equal", 18, 20))
sketch1.addConstraint(Sketcher.Constraint("Equal", 1, 21))
sketch1.addConstraint(Sketcher.Constraint("Equal", 20, 22))
sketch1.addConstraint(Sketcher.Constraint("Equal", 22, 24))
sketch1.addConstraint(Sketcher.Constraint("Equal", 16, 26))
sketch1.addConstraint(Sketcher.Constraint("Equal", 14, 28))
sketch1.addConstraint(Sketcher.Constraint("Equal", 12, 30))
sketch1.addConstraint(Sketcher.Constraint("Equal", 30, 32))
sketch1.addConstraint(Sketcher.Constraint("Equal", 28, 34))
sketch1.addConstraint(Sketcher.Constraint("Equal", 26, 36))
sketch1.addConstraint(Sketcher.Constraint("Equal", 24, 38))
sketch1.addConstraint(Sketcher.Constraint("Equal", 38, 40))
sketch1.addConstraint(Sketcher.Constraint("Equal", 21, 41))
sketch1.addConstraint(Sketcher.Constraint("Equal", 40, 42))
sketch1.addConstraint(Sketcher.Constraint("Equal", 42, 44))
sketch1.addConstraint(Sketcher.Constraint("Equal", 36, 46))
sketch1.addConstraint(Sketcher.Constraint("Equal", 34, 48))
sketch1.addConstraint(Sketcher.Constraint("Equal", 32, 50))
sketch1.addConstraint(Sketcher.Constraint("Equal", 50, 52))
sketch1.addConstraint(Sketcher.Constraint("Equal", 48, 54))
sketch1.addConstraint(Sketcher.Constraint("Equal", 46, 56))
sketch1.addConstraint(Sketcher.Constraint("Equal", 44, 58))
sketch1.addConstraint(Sketcher.Constraint("Equal", 58, 60))
sketch1.addConstraint(Sketcher.Constraint("Equal", 41, 61))
sketch1.addConstraint(Sketcher.Constraint("Equal", 60, 62))
sketch1.addConstraint(Sketcher.Constraint("Equal", 62, 64))
sketch1.addConstraint(Sketcher.Constraint("Equal", 64, 66))
sketch1.addConstraint(Sketcher.Constraint("Equal", 54, 68))
sketch1.addConstraint(Sketcher.Constraint("Equal", 68, 70))
sketch1.addConstraint(Sketcher.Constraint("Equal", 52, 73))
sketch1.addConstraint(Sketcher.Constraint("Equal", 73, 75))
sketch1.addConstraint(Sketcher.Constraint("Equal", 71, 77))
sketch1.addConstraint(Sketcher.Constraint("Symmetric", 0, 3, 40, 3, -1, 1))
sketch1.addConstraint(Sketcher.Constraint("Symmetric", 1, 3, 41, 3, -1, 1))
sketch1.addConstraint(Sketcher.Constraint("Symmetric", 2, 3, 42, 3, -1, 1))
sketch1.addConstraint(Sketcher.Constraint("Symmetric", 4, 3, 44, 3, -1, 1))
sketch1.addConstraint(Sketcher.Constraint("Symmetric", 6, 3, 46, 3, -1, 1))
sketch1.addConstraint(Sketcher.Constraint("Symmetric", 10, 3, 50, 3, -1, 1))
sketch1.addConstraint(Sketcher.Constraint("Symmetric", 14, 3, 54, 3, -1, 1))
sketch1.addConstraint(Sketcher.Constraint("Symmetric", 18, 3, 58, 3, -1, 1))
sketch1.addConstraint(Sketcher.Constraint("Symmetric", 20, 3, 60, 3, -1, 1))
sketch1.addConstraint(Sketcher.Constraint("Symmetric", 21, 3, 61, 3, -1, 1))
sketch1.addConstraint(Sketcher.Constraint("Symmetric", 22, 3, 62, 3, -1, 1))
sketch1.addConstraint(Sketcher.Constraint("Symmetric", 24, 3, 64, 3, -1, 1))
sketch1.addConstraint(Sketcher.Constraint("Symmetric", 38, 3, 66, 3, -1, 1))
sketch1.addConstraint(Sketcher.Constraint("Symmetric", 30, 3, 73, 3, -1, 1))
sketch1.addConstraint(Sketcher.Constraint("Symmetric", 32, 1, 75, 1, -1, 1))
sketch1.addConstraint(Sketcher.Constraint("Symmetric", 8, 3, 14, 3, -2))
sketch1.addConstraint(Sketcher.Constraint("Symmetric", 4, 3, 18, 3, -2))
sketch1.addConstraint(Sketcher.Constraint("Symmetric", 2, 3, 20, 3, -2))
sketch1.addConstraint(Sketcher.Constraint("Symmetric", 1, 3, 21, 3, -2))
sketch1.addConstraint(Sketcher.Constraint("Symmetric", 0, 3, 22, 3, -2))
sketch1.addConstraint(Sketcher.Constraint("Symmetric", 38, 3, 64, 3, -2))
sketch1.addConstraint(Sketcher.Constraint("Symmetric", 49, 2, 52, 1, -2))
sketch1.addConstraint(Sketcher.Constraint("Symmetric", 32, 1, 72, 2, -2))
sketch1.addConstraint(Sketcher.Constraint("Symmetric", 28, 3, 34, 3, -1))
sketch1.addConstraint(Sketcher.Constraint("Symmetric", 71, 3, 77, 3, -1))
sketch1.addConstraint(Sketcher.Constraint("Perpendicular", 9, 13))
sketch1.addConstraint(Sketcher.Constraint("Parallel", 13, 29))
sketch1.addConstraint(Sketcher.Constraint("Perpendicular", 29, 33))
sketch1.addConstraint(Sketcher.Constraint("Horizontal", 2, 3, 4, 3))
sketch1.addConstraint(Sketcher.Constraint("Horizontal", 20, 3, 1, 2))
sketch1.addConstraint(Sketcher.Constraint("Horizontal", 1, 2, 2, 1))
sketch1.addConstraint(Sketcher.Constraint("Horizontal", 3, 2, 4, 1))
sketch1.addConstraint(Sketcher.Constraint("Horizontal", 17, 2, 18, 1))
sketch1.addConstraint(Sketcher.Constraint("Horizontal", 41, 2, 42, 1))
sketch1.addConstraint(Sketcher.Constraint("Horizontal", 57, 2, 58, 1))
sketch1.addConstraint(Sketcher.Constraint("Vertical", 22, 3, 24, 3))
sketch1.addConstraint(Sketcher.Constraint("Vertical", 16, 3, 46, 3))
sketch1.addConstraint(Sketcher.Constraint("Vertical", 6, 3, 56, 3))
sketch1.addConstraint(Sketcher.Constraint("Vertical", 66, 3, 0, 1))
sketch1.addConstraint(Sketcher.Constraint("Vertical", 21, 2, 22, 1))
sketch1.addConstraint(Sketcher.Constraint("Vertical", 23, 2, 24, 1))
sketch1.addConstraint(Sketcher.Constraint("Vertical", 37, 2, 38, 1))
sketch1.addConstraint(Sketcher.Constraint("Vertical", 61, 2, 62, 1))
sketch1.addConstraint(Sketcher.Constraint("Vertical", 63, 2, 64, 1))
sketch1.addConstraint(Sketcher.Constraint("Vertical", 65, 2, 66, 1))
sketch1.addConstraint(Sketcher.Constraint("Vertical", 68, 3, 70, 1))
sketch1.addConstraint(Sketcher.Constraint("Vertical", 70, 1, 77, 1))
sketch1.addConstraint(Sketcher.Constraint("Equal", 59, 23))
sketch1.addConstraint(Sketcher.Constraint("Equal", 57, 25))
sketch1.addConstraint(Sketcher.Constraint("Equal", 55, 27))
sketch1.addConstraint(Sketcher.Constraint("Equal", 51, 31))
sketch1.addConstraint(Sketcher.Constraint("Equal", 27, 35))
sketch1.addConstraint(Sketcher.Constraint("Equal", 13, 29))
sketch1.addConstraint(Sketcher.Constraint("Radius", 0, Q("0.02 in")))
sketch1.addConstraint(Sketcher.Constraint("Radius", 8, Q("0.04 in")))
sketch1.addConstraint(Sketcher.Constraint("Diameter", 78, Q("0.205 in")))
sketch1.addConstraint(Sketcher.Constraint("Radius", 1, Q("0.083 in")))
sketch1.addConstraint(Sketcher.Constraint("Radius", 10, Q("0.125 in")))
sketch1.addConstraint(Sketcher.Constraint("Radius", 71, Q("0.045 in")))
sketch1.addConstraint(Sketcher.Constraint("DistanceX", 0, 3, -1, 1, Q("0.5 in")))
sketch1.addConstraint(Sketcher.Constraint("DistanceY", 2, 3, -1, 1, Q("0.5 in")))
sketch1.addConstraint(Sketcher.Constraint("Radius", 6, Q("0.0435 in")))
sketch1.addConstraint(Sketcher.Constraint("DistanceX", 3, 1, 3, 2, Q("0.127 in")))
sketch1.addConstraint(Sketcher.Constraint("DistanceY", 65, 2, 65, 1, Q("0.418 in")))
sketch1.addConstraint(Sketcher.Constraint("DistanceY", 69, 1, 69, 2, Q("0.505 in")))
sketch1.addConstraint(Sketcher.Constraint("DistanceX", 11, 1, 11, 2, Q("0.1284 in")))
sketch1.addConstraint(Sketcher.Constraint("DistanceX", 68, 3, -1, 1, Q("0.373 in")))
sketch1.addConstraint(Sketcher.Constraint("Distance", 9, Q("0.1847 in")))
sketch1.addConstraint(Sketcher.Constraint("Distance", 72, Q("0.1813 in")))
sketch1.addConstraint(Sketcher.Constraint("DistanceX", 5, 1, 5, 2, 1.0063))
pad1 = body.newObject("PartDesign::Pad", "Pad")
pad1.Profile = sketch1
pad1.Length = Q("48 in")
pad1.Reversed = True

doc.recompute()
